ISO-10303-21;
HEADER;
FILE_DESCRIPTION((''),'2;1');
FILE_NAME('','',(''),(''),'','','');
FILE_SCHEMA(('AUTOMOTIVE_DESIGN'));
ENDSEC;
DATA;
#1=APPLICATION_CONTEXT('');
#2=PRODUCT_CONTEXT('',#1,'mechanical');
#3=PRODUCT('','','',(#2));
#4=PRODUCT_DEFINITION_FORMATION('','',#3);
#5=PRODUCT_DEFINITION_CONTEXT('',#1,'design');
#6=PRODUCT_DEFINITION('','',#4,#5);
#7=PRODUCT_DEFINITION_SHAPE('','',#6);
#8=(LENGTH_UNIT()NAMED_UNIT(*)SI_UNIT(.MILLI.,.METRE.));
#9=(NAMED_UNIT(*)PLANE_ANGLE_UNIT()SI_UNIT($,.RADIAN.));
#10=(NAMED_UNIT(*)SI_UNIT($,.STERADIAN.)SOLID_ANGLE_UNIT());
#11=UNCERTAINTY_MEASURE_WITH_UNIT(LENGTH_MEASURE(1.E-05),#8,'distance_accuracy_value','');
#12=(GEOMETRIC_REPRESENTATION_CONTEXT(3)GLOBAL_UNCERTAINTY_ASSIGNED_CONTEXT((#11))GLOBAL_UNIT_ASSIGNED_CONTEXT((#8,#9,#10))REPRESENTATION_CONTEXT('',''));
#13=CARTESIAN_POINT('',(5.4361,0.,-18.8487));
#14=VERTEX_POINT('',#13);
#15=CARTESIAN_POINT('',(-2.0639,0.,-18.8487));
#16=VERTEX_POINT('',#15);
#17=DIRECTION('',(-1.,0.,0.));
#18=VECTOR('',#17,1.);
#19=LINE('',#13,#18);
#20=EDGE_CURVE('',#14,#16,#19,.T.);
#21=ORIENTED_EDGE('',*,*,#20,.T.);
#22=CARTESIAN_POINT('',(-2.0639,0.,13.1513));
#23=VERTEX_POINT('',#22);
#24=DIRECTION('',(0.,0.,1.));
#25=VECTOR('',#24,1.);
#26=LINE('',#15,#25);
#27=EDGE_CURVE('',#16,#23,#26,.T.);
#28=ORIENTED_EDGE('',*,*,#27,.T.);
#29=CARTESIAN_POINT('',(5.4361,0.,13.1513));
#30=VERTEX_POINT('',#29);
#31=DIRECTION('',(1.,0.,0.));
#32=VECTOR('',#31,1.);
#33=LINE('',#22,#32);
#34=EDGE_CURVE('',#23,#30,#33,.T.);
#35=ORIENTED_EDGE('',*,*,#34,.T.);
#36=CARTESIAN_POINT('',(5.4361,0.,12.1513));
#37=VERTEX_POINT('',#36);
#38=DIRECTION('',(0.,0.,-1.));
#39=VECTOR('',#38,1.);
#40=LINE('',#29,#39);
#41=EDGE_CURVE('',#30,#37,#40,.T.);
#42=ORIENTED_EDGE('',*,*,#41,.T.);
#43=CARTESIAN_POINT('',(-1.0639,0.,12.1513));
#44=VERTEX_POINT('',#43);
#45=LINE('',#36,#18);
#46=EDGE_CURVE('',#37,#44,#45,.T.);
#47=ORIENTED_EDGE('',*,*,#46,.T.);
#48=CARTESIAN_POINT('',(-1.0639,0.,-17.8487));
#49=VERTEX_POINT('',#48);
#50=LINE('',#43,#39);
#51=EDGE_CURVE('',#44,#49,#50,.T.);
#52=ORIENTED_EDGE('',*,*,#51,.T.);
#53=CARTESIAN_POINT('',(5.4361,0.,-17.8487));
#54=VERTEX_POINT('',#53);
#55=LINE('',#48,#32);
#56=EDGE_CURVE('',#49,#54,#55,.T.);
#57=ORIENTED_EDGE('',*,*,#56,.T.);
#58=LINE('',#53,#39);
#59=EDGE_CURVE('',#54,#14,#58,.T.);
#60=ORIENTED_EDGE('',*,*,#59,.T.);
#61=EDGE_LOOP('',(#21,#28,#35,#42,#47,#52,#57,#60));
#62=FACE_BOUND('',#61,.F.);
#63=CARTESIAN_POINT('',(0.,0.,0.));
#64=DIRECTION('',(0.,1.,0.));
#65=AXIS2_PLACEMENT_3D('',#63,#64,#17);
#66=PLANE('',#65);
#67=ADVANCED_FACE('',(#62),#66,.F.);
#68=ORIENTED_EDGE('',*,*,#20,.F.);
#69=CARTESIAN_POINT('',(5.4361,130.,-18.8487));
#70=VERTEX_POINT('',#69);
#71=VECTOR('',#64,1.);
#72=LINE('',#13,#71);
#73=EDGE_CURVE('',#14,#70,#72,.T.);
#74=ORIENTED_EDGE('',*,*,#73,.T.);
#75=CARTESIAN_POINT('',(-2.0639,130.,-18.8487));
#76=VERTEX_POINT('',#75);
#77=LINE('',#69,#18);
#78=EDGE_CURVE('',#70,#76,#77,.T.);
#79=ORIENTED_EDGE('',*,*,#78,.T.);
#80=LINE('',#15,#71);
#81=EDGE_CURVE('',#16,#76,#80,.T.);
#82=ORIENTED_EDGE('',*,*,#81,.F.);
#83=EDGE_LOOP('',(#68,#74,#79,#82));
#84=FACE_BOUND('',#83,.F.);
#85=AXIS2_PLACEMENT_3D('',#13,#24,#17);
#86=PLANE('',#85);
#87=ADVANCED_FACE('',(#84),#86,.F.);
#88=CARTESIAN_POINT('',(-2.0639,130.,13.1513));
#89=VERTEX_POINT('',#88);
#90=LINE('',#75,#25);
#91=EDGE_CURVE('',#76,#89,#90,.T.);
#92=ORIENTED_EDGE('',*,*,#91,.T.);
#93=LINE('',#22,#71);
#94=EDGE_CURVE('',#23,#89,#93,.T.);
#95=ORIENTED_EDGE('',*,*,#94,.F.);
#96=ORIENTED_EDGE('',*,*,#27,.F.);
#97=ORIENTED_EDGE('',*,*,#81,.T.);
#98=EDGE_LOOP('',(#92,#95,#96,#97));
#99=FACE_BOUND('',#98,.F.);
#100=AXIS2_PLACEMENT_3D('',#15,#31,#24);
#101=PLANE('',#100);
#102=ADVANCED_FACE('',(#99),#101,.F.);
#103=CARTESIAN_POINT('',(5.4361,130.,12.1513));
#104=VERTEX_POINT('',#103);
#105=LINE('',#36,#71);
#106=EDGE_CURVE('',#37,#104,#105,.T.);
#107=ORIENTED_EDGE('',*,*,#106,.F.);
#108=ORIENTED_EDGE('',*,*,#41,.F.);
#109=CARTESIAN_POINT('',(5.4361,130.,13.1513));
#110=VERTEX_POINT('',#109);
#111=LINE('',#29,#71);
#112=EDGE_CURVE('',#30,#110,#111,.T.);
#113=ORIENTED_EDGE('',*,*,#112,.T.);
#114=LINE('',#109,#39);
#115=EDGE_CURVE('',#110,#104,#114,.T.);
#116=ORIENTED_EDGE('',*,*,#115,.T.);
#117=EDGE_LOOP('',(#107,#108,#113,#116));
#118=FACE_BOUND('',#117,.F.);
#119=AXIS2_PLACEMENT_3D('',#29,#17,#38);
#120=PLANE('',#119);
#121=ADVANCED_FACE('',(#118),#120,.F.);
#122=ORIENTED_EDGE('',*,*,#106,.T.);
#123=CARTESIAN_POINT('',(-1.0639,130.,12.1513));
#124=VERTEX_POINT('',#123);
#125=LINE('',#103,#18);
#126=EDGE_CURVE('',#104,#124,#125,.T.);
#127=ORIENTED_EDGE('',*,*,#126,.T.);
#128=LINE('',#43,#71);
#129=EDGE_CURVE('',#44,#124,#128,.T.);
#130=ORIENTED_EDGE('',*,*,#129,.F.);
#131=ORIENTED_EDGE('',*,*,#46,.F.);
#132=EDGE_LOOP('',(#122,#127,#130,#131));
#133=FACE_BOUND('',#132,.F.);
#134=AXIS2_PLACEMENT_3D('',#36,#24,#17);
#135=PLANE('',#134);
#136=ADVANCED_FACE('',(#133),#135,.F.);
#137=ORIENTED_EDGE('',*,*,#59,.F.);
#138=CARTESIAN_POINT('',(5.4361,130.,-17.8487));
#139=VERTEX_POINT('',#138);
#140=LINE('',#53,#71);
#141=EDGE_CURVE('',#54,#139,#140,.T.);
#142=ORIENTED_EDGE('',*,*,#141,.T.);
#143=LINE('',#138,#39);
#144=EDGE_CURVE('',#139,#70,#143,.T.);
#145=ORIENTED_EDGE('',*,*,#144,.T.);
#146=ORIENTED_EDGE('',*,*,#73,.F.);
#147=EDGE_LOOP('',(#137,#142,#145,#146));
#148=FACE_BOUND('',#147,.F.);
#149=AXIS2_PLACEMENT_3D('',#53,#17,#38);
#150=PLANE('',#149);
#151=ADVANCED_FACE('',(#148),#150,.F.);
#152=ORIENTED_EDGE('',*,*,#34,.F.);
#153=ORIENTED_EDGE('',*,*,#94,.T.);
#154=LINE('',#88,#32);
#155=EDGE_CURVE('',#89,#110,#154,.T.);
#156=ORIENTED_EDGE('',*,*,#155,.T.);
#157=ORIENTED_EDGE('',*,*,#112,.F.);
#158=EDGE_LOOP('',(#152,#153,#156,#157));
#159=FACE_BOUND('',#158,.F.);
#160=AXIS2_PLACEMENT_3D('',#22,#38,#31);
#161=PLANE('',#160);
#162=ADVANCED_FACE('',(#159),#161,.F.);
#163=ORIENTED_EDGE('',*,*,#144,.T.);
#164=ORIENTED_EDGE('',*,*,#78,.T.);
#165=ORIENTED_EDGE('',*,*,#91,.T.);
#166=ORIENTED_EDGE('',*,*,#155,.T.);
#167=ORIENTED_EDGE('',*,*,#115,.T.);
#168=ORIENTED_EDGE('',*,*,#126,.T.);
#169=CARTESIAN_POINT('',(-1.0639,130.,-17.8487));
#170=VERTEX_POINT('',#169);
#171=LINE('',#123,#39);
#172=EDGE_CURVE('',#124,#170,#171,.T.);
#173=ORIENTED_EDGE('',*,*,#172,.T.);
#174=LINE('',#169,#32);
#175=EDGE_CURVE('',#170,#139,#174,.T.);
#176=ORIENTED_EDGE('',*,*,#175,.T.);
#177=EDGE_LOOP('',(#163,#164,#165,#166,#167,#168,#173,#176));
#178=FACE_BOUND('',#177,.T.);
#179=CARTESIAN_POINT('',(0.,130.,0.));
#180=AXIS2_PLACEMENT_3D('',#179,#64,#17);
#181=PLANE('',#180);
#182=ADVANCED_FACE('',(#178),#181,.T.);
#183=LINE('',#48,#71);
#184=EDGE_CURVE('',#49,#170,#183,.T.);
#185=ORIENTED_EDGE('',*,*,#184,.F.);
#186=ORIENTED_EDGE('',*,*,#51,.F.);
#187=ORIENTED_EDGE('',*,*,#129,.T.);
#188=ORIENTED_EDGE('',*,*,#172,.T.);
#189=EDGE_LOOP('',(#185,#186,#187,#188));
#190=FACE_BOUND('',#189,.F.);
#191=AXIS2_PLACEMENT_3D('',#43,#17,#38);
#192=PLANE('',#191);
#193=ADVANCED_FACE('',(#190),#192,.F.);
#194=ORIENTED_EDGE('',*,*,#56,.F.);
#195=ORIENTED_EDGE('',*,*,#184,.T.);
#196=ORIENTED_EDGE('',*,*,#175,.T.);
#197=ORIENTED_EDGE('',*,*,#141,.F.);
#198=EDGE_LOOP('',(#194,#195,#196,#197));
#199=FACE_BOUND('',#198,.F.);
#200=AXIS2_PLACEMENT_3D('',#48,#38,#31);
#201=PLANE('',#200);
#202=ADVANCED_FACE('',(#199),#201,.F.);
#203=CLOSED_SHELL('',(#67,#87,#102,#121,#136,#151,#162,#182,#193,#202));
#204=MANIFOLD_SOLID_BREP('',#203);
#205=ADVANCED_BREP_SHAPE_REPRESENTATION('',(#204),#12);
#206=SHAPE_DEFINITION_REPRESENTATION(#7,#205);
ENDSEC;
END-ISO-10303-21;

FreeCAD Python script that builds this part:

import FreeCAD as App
import Part
import Sketcher
from FreeCAD import Vector


def add_polygon(sketch, points):
    """Adds a closed chain of lines whose ends are joined by coincident constraints."""
    first, n = sketch.GeometryCount, len(points)
    for a, b in zip(points, points[1:] + points[:1]):
        sketch.addGeometry(Part.LineSegment(App.Vector(*a, 0), App.Vector(*b, 0)), False)
    for i in range(n):
        sketch.addConstraint(Sketcher.Constraint("Coincident", first + i, 2, first + (i + 1) % n, 1))

doc = App.newDocument("Part")
body = doc.addObject("PartDesign::Body", "Body")

# Sketch on XZ plane
sketch1 = doc.addObject("Sketcher::SketchObject", "Sketch")
body.addObject(sketch1)
sketch1.AttachmentSupport = (doc.XZ_Plane, [""])
sketch1.MapMode = "FlatFace"
add_polygon(sketch1, [(5.4, 13.2), (5.4, 12.2), (-1.1, 12.2), (-1.1, -17.8), (5.4, -17.8), (5.4, -18.8), (-2.1, -18.8), (-2.1, 13.2)])  # lines 0-7
sketch1.addConstraint([
    Sketcher.Constraint("Vertical", 0),
    Sketcher.Constraint("Horizontal", 1),
    Sketcher.Constraint("Vertical", 2),
    Sketcher.Constraint("Horizontal", 3),
    Sketcher.Constraint("Vertical", 4),
    Sketcher.Constraint("Horizontal", 5),
    Sketcher.Constraint("Vertical", 6),
    Sketcher.Constraint("Horizontal", 7),
    Sketcher.Constraint("Vertical", 0, 2, 3, 2),
    Sketcher.Constraint("Equal", 0, 4),
    Sketcher.Constraint("DistanceY", 0, 2, 0, 1, 1.0),
    Sketcher.Constraint("DistanceY", 2, 2, 2, 1, 30.0),
    Sketcher.Constraint("DistanceX", 1, 2, 1, 1, 6.5),
    Sketcher.Constraint("DistanceX", 5, 2, 5, 1, 7.5),
    Sketcher.Constraint("DistanceX", -1, 1, 0, 2, 5.436),
    Sketcher.Constraint("DistanceY", -1, 1, 0, 2, 12.1513),
])
pad1 = doc.addObject("PartDesign::Pad", "Pad")
body.addObject(pad1)
pad1.Profile = sketch1
pad1.Length = 130
pad1.Reversed = True

doc.recompute()
